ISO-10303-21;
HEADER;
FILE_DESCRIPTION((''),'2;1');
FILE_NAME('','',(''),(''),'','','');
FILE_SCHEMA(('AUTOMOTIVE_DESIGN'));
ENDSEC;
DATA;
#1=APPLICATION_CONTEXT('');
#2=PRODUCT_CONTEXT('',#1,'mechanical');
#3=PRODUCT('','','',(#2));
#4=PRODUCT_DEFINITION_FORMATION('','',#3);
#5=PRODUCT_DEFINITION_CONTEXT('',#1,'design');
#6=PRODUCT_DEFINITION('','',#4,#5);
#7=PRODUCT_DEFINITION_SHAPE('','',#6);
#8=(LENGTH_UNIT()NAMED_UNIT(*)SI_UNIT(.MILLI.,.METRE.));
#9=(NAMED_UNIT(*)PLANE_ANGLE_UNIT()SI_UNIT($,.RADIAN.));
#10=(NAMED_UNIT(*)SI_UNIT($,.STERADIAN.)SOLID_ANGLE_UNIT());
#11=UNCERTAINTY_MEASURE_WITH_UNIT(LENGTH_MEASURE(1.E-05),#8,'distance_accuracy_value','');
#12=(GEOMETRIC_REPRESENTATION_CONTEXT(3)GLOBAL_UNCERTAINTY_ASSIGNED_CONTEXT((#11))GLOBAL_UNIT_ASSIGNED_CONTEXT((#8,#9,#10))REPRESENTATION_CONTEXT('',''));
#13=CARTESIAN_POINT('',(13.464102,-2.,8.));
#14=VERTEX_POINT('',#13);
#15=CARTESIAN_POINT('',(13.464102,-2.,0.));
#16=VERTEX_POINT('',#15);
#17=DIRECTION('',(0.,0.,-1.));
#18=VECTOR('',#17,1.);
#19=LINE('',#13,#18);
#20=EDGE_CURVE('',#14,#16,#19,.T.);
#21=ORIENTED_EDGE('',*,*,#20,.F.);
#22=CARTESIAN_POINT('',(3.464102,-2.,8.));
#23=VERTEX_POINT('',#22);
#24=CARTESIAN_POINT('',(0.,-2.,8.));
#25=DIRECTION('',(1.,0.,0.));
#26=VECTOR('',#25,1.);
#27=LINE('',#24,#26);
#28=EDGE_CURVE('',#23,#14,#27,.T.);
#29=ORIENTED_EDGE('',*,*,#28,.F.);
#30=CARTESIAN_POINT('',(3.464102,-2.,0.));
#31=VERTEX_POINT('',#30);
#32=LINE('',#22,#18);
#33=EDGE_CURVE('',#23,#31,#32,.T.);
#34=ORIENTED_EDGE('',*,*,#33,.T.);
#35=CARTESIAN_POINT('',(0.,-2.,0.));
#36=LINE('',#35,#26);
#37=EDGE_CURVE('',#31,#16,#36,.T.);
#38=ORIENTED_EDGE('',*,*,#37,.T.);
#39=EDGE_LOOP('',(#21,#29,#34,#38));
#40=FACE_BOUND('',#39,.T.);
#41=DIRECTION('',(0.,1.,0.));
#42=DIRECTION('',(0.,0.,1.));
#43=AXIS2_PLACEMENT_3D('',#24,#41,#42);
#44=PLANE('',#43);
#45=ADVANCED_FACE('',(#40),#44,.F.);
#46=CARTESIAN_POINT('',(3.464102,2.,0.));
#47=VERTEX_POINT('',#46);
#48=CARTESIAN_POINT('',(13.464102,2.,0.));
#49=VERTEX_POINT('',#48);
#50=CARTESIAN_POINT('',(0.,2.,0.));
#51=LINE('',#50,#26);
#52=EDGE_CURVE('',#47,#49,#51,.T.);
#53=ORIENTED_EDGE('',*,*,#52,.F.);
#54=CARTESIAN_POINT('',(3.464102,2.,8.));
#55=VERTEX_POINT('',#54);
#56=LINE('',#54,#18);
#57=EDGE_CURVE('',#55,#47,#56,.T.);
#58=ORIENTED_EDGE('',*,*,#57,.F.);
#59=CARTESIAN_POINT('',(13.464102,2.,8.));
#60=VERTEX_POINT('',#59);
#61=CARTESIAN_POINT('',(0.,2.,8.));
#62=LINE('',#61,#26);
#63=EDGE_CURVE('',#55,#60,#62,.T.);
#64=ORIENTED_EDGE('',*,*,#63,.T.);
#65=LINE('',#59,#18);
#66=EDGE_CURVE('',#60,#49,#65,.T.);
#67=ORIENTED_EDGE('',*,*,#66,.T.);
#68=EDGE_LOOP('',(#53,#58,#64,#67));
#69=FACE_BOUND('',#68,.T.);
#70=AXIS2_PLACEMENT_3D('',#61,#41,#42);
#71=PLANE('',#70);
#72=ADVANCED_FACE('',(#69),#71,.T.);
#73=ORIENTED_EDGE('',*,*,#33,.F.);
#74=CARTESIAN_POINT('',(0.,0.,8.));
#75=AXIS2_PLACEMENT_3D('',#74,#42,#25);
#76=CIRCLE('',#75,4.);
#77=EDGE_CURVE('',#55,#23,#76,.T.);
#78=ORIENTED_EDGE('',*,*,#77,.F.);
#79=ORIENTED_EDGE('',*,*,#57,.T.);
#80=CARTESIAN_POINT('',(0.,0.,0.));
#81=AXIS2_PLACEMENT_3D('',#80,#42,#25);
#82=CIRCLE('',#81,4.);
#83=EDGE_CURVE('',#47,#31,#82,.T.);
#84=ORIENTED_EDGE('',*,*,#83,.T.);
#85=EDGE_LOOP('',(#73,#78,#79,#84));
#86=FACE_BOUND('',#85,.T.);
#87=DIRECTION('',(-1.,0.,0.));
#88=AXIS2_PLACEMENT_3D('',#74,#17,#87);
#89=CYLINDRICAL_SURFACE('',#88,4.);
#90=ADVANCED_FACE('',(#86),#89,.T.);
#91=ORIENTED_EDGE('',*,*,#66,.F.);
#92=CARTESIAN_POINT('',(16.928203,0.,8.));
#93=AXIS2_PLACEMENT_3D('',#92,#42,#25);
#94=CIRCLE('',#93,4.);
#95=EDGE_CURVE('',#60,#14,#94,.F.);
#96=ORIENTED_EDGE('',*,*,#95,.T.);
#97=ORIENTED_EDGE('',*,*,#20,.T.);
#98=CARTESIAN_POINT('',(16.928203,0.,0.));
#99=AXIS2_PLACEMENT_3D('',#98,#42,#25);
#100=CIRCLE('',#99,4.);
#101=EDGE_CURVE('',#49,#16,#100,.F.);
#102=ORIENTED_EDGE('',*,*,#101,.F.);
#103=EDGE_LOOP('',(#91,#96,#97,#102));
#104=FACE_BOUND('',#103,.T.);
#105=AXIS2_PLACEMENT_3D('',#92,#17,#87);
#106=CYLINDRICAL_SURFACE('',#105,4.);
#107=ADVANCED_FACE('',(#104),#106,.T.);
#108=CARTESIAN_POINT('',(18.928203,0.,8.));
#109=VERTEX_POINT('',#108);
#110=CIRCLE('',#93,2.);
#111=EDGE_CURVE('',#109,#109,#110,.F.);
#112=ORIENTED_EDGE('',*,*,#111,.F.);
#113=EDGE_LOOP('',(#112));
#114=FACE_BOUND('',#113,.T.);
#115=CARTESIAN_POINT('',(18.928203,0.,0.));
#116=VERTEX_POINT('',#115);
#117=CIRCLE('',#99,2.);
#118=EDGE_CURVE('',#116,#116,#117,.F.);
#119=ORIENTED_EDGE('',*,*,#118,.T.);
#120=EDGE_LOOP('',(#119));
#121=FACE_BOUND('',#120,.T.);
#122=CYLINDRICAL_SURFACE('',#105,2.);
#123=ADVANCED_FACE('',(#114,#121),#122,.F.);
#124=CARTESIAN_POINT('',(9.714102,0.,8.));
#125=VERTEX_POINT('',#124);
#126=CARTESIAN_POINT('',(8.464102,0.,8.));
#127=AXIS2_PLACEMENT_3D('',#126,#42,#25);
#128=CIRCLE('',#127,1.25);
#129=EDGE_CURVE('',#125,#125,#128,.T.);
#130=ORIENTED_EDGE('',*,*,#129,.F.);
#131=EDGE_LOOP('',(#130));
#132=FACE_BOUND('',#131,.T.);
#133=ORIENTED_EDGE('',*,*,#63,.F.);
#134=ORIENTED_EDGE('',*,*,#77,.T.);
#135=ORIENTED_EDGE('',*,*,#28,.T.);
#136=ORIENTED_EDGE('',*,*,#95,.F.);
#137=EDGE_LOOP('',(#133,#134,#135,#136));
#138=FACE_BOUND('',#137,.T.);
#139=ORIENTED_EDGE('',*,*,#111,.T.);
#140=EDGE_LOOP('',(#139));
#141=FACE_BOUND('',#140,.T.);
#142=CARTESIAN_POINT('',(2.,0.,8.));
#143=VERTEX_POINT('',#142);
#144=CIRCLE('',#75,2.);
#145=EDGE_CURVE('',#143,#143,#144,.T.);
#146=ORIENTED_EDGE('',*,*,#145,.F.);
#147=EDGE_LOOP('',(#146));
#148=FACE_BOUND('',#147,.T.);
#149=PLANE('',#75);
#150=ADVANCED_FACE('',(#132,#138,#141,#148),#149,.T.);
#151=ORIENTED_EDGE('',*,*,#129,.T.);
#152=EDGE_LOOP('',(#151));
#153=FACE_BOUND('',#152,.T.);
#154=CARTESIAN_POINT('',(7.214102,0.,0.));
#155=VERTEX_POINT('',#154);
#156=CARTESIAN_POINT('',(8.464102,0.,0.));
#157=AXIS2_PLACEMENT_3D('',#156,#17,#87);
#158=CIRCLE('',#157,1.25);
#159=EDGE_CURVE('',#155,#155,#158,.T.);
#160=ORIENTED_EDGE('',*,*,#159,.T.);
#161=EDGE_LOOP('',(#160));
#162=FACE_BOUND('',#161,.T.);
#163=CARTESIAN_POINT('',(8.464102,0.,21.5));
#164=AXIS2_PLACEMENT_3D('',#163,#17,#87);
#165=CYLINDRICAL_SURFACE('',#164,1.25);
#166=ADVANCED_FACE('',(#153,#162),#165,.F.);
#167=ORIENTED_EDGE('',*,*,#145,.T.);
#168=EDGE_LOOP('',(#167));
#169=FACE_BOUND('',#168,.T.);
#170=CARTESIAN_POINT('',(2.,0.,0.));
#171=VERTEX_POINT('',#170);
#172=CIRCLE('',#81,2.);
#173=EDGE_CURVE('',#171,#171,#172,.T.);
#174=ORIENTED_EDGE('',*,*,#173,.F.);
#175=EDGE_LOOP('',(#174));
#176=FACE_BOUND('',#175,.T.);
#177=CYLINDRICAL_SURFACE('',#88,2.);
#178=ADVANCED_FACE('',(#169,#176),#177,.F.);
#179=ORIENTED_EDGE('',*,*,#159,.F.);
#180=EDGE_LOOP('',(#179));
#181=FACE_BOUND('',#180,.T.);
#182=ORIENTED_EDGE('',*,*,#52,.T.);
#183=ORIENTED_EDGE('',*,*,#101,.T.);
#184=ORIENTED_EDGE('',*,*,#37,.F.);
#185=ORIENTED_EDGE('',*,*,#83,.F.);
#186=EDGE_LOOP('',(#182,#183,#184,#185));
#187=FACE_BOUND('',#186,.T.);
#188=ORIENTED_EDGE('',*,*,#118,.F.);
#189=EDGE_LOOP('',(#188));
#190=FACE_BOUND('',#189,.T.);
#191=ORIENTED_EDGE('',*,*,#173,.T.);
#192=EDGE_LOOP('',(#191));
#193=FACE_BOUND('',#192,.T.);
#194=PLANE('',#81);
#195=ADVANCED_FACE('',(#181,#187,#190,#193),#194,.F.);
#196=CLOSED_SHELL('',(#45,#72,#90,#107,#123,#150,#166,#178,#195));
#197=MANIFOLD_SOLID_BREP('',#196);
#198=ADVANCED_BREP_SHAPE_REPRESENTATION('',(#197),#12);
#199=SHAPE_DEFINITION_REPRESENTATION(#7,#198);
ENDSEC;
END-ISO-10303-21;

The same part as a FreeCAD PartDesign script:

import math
import FreeCAD as App
import Part
import Sketcher

doc = App.newDocument("Part")
body = doc.addObject("PartDesign::Body", "Body")

sketch1 = body.newObject("Sketcher::SketchObject", "Sketch")
sketch1.AttachmentSupport = (doc.getObject("XY_Plane"), [""])
sketch1.MapMode = "FlatFace"
sketch1.addGeometry([
    Part.ArcOfCircle(Part.Circle(App.Vector(0, 0, 0), App.Vector(0, 0, 1), 4), math.radians(30), math.radians(330)),
    Part.LineSegment(App.Vector(3.464102, -2, 0), App.Vector(13.464102, -2, 0)),
    Part.ArcOfCircle(Part.Circle(App.Vector(16.928203, 0, 0), App.Vector(0, 0, 1), 4), math.radians(-150), math.radians(150)),
    Part.LineSegment(App.Vector(13.464102, 2, 0), App.Vector(3.464102, 2, 0)),
    Part.Circle(App.Vector(0, 0, 0), App.Vector(0, 0, 1), 2),
    Part.Circle(App.Vector(16.928203, 0, 0), App.Vector(0, 0, 1), 2),
], False)
sketch1.addConstraint([
    Sketcher.Constraint("Coincident", 0, 2, 1, 1),
    Sketcher.Constraint("Coincident", 1, 2, 2, 1),
    Sketcher.Constraint("Coincident", 2, 2, 3, 1),
    Sketcher.Constraint("Coincident", 3, 2, 0, 1),
    Sketcher.Constraint("Horizontal", 1),
    Sketcher.Constraint("Horizontal", 3),
    Sketcher.Constraint("Coincident", 0, 3, -1, 1),
    Sketcher.Constraint("Coincident", 4, 3, -1, 1),
    Sketcher.Constraint("Coincident", 5, 3, 2, 3),
    Sketcher.Constraint("Equal", 0, 2),
    Sketcher.Constraint("Equal", 4, 5),
    Sketcher.Constraint("Symmetric", 1, 2, 2, 2, -1),
    Sketcher.Constraint("Diameter", 4, 4.0),
    Sketcher.Constraint("Radius", 0, 4.0),
    Sketcher.Constraint("DistanceX", 1, 1, 1, 2, 10.0),
    Sketcher.Constraint("DistanceY", 0, 2, -1, 1, 2.0),
])
pad1 = body.newObject("PartDesign::Pad", "Pad")
pad1.Profile = sketch1
pad1.Length = 8

sketch2 = body.newObject("Sketcher::SketchObject", "Sketch001")
sketch2.AttachmentSupport = (doc.getObject("XY_Plane"), [""])
sketch2.MapMode = "FlatFace"
sketch2.addGeometry(Part.Circle(App.Vector(8.464102, 0, 0), App.Vector(0, 0, 1), 1.25), False)
sketch2.addConstraint([
    Sketcher.Constraint("PointOnObject", 0, 3, -1),
    Sketcher.Constraint("Diameter", 0, 2.5),
    Sketcher.Constraint("DistanceX", -1, 1, 0, 3, 8.464102),
])
pocket1 = body.newObject("PartDesign::Pocket", "Pocket")
pocket1.Profile = sketch2
pocket1.Length = 21.5
pocket1.Reversed = True

doc.recompute()
